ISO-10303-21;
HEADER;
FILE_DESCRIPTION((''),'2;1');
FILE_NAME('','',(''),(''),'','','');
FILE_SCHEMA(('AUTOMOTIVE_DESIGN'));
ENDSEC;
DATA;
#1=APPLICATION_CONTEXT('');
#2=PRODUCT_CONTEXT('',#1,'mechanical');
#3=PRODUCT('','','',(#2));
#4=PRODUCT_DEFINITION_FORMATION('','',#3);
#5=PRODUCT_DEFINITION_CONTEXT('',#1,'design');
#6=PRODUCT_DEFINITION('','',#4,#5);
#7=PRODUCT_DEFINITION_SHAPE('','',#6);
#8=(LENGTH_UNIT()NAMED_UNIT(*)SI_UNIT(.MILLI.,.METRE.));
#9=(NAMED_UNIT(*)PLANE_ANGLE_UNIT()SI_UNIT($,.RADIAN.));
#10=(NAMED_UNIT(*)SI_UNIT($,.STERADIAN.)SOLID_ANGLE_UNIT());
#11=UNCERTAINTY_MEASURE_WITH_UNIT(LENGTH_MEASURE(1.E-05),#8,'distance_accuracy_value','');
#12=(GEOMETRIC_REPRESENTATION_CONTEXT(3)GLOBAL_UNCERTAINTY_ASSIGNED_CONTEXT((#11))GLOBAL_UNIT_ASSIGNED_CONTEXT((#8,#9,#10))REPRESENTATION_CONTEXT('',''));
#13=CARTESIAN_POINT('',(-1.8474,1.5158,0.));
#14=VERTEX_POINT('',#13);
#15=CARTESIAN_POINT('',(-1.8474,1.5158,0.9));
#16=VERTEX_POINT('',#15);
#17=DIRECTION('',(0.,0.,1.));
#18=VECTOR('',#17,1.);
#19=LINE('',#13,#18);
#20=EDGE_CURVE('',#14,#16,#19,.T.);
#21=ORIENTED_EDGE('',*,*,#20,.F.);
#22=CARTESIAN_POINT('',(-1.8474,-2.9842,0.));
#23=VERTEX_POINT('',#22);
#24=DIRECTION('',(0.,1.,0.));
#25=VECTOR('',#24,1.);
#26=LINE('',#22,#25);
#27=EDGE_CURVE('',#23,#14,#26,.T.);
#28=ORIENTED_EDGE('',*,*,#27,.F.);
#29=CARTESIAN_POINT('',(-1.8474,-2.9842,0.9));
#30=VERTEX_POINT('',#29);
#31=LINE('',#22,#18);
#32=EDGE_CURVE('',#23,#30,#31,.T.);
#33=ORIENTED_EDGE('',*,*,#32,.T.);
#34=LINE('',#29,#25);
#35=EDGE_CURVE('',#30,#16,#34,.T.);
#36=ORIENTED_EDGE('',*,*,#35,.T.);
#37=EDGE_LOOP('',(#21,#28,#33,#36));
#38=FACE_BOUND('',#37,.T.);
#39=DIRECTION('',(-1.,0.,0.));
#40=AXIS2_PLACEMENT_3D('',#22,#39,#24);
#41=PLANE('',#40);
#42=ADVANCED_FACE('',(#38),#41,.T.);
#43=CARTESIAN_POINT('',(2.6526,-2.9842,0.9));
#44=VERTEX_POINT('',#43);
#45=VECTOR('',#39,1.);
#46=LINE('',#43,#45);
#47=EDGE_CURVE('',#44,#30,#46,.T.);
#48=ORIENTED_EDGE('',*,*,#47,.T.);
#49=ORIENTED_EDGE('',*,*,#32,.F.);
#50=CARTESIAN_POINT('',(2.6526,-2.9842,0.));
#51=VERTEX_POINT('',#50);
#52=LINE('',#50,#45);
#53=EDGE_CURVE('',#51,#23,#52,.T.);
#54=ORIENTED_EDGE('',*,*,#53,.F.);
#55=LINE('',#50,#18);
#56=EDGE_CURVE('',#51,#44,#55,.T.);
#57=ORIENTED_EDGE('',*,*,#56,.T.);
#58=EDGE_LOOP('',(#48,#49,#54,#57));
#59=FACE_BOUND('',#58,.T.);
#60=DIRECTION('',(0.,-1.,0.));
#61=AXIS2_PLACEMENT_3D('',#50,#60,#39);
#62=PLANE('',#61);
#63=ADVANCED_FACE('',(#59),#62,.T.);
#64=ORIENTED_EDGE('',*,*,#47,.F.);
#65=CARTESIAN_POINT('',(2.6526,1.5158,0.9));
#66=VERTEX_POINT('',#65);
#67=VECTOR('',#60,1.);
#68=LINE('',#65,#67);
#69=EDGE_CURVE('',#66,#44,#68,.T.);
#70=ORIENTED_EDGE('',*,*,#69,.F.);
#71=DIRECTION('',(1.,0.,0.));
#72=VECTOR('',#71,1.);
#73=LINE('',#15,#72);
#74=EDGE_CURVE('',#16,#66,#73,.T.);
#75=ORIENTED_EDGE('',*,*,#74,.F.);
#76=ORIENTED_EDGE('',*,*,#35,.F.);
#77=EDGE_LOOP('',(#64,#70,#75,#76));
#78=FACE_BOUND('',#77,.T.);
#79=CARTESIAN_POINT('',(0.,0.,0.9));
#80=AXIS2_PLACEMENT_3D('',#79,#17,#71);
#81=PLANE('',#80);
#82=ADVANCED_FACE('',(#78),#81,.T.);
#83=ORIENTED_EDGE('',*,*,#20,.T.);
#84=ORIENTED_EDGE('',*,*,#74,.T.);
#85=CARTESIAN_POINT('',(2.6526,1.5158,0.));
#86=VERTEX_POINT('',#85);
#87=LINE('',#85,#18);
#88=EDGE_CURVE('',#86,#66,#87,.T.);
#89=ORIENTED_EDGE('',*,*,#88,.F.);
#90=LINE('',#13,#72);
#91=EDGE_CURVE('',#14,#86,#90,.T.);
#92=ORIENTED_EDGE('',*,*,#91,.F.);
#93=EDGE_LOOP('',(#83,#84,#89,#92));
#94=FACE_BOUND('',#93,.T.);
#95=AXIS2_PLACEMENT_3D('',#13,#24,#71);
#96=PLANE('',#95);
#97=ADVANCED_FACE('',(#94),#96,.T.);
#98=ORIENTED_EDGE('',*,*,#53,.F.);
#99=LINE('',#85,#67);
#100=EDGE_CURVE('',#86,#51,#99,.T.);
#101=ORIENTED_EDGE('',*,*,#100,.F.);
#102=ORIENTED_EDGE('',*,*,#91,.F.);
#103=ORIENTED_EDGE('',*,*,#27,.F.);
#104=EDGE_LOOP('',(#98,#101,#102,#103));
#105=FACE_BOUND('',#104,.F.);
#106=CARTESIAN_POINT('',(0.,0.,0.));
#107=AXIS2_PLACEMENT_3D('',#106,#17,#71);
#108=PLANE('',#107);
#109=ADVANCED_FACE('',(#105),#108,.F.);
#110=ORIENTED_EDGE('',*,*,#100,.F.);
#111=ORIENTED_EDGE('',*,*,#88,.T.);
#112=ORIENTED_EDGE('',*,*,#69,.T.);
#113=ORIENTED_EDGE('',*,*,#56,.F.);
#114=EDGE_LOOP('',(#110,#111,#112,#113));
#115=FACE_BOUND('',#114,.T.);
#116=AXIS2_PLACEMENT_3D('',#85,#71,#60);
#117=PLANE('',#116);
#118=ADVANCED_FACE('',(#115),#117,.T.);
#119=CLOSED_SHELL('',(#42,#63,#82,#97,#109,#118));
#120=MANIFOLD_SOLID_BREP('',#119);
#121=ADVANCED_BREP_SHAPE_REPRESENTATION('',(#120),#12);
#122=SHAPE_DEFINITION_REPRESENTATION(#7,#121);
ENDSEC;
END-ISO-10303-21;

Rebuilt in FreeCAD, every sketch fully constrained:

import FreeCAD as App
import Part
import Sketcher
from FreeCAD import Vector


def add_polygon(sketch, points):
    """Adds a closed chain of lines whose ends are joined by coincident constraints."""
    first, n = sketch.GeometryCount, len(points)
    for a, b in zip(points, points[1:] + points[:1]):
        sketch.addGeometry(Part.LineSegment(App.Vector(*a, 0), App.Vector(*b, 0)), False)
    for i in range(n):
        sketch.addConstraint(Sketcher.Constraint("Coincident", first + i, 2, first + (i + 1) % n, 1))

doc = App.newDocument("Part")
body = doc.addObject("PartDesign::Body", "Body")

# Sketch on XY plane
sketch1 = body.newObject("Sketcher::SketchObject", "Sketch")
sketch1.AttachmentSupport = (doc.getObject("XY_Plane"), [""])
sketch1.MapMode = "FlatFace"
add_polygon(sketch1, [(2.7, 1.5), (-1.8, 1.5), (-1.8, -3), (2.7, -3)])  # lines 0-3
sketch1.addConstraint([
    Sketcher.Constraint("Horizontal", 0),
    Sketcher.Constraint("Vertical", 1),
    Sketcher.Constraint("Horizontal", 2),
    Sketcher.Constraint("Vertical", 3),
    Sketcher.Constraint("Equal", 2, 1),
    Sketcher.Constraint("DistanceX", 0, 2, 0, 1, 4.5),
    Sketcher.Constraint("DistanceX", 0, 2, -1, 1, 1.8474),
    Sketcher.Constraint("DistanceY", -1, 1, 0, 2, 1.5158),
])
pad1 = body.newObject("PartDesign::Pad", "Pad")
pad1.Profile = sketch1
pad1.Length = 0.9

doc.recompute()
